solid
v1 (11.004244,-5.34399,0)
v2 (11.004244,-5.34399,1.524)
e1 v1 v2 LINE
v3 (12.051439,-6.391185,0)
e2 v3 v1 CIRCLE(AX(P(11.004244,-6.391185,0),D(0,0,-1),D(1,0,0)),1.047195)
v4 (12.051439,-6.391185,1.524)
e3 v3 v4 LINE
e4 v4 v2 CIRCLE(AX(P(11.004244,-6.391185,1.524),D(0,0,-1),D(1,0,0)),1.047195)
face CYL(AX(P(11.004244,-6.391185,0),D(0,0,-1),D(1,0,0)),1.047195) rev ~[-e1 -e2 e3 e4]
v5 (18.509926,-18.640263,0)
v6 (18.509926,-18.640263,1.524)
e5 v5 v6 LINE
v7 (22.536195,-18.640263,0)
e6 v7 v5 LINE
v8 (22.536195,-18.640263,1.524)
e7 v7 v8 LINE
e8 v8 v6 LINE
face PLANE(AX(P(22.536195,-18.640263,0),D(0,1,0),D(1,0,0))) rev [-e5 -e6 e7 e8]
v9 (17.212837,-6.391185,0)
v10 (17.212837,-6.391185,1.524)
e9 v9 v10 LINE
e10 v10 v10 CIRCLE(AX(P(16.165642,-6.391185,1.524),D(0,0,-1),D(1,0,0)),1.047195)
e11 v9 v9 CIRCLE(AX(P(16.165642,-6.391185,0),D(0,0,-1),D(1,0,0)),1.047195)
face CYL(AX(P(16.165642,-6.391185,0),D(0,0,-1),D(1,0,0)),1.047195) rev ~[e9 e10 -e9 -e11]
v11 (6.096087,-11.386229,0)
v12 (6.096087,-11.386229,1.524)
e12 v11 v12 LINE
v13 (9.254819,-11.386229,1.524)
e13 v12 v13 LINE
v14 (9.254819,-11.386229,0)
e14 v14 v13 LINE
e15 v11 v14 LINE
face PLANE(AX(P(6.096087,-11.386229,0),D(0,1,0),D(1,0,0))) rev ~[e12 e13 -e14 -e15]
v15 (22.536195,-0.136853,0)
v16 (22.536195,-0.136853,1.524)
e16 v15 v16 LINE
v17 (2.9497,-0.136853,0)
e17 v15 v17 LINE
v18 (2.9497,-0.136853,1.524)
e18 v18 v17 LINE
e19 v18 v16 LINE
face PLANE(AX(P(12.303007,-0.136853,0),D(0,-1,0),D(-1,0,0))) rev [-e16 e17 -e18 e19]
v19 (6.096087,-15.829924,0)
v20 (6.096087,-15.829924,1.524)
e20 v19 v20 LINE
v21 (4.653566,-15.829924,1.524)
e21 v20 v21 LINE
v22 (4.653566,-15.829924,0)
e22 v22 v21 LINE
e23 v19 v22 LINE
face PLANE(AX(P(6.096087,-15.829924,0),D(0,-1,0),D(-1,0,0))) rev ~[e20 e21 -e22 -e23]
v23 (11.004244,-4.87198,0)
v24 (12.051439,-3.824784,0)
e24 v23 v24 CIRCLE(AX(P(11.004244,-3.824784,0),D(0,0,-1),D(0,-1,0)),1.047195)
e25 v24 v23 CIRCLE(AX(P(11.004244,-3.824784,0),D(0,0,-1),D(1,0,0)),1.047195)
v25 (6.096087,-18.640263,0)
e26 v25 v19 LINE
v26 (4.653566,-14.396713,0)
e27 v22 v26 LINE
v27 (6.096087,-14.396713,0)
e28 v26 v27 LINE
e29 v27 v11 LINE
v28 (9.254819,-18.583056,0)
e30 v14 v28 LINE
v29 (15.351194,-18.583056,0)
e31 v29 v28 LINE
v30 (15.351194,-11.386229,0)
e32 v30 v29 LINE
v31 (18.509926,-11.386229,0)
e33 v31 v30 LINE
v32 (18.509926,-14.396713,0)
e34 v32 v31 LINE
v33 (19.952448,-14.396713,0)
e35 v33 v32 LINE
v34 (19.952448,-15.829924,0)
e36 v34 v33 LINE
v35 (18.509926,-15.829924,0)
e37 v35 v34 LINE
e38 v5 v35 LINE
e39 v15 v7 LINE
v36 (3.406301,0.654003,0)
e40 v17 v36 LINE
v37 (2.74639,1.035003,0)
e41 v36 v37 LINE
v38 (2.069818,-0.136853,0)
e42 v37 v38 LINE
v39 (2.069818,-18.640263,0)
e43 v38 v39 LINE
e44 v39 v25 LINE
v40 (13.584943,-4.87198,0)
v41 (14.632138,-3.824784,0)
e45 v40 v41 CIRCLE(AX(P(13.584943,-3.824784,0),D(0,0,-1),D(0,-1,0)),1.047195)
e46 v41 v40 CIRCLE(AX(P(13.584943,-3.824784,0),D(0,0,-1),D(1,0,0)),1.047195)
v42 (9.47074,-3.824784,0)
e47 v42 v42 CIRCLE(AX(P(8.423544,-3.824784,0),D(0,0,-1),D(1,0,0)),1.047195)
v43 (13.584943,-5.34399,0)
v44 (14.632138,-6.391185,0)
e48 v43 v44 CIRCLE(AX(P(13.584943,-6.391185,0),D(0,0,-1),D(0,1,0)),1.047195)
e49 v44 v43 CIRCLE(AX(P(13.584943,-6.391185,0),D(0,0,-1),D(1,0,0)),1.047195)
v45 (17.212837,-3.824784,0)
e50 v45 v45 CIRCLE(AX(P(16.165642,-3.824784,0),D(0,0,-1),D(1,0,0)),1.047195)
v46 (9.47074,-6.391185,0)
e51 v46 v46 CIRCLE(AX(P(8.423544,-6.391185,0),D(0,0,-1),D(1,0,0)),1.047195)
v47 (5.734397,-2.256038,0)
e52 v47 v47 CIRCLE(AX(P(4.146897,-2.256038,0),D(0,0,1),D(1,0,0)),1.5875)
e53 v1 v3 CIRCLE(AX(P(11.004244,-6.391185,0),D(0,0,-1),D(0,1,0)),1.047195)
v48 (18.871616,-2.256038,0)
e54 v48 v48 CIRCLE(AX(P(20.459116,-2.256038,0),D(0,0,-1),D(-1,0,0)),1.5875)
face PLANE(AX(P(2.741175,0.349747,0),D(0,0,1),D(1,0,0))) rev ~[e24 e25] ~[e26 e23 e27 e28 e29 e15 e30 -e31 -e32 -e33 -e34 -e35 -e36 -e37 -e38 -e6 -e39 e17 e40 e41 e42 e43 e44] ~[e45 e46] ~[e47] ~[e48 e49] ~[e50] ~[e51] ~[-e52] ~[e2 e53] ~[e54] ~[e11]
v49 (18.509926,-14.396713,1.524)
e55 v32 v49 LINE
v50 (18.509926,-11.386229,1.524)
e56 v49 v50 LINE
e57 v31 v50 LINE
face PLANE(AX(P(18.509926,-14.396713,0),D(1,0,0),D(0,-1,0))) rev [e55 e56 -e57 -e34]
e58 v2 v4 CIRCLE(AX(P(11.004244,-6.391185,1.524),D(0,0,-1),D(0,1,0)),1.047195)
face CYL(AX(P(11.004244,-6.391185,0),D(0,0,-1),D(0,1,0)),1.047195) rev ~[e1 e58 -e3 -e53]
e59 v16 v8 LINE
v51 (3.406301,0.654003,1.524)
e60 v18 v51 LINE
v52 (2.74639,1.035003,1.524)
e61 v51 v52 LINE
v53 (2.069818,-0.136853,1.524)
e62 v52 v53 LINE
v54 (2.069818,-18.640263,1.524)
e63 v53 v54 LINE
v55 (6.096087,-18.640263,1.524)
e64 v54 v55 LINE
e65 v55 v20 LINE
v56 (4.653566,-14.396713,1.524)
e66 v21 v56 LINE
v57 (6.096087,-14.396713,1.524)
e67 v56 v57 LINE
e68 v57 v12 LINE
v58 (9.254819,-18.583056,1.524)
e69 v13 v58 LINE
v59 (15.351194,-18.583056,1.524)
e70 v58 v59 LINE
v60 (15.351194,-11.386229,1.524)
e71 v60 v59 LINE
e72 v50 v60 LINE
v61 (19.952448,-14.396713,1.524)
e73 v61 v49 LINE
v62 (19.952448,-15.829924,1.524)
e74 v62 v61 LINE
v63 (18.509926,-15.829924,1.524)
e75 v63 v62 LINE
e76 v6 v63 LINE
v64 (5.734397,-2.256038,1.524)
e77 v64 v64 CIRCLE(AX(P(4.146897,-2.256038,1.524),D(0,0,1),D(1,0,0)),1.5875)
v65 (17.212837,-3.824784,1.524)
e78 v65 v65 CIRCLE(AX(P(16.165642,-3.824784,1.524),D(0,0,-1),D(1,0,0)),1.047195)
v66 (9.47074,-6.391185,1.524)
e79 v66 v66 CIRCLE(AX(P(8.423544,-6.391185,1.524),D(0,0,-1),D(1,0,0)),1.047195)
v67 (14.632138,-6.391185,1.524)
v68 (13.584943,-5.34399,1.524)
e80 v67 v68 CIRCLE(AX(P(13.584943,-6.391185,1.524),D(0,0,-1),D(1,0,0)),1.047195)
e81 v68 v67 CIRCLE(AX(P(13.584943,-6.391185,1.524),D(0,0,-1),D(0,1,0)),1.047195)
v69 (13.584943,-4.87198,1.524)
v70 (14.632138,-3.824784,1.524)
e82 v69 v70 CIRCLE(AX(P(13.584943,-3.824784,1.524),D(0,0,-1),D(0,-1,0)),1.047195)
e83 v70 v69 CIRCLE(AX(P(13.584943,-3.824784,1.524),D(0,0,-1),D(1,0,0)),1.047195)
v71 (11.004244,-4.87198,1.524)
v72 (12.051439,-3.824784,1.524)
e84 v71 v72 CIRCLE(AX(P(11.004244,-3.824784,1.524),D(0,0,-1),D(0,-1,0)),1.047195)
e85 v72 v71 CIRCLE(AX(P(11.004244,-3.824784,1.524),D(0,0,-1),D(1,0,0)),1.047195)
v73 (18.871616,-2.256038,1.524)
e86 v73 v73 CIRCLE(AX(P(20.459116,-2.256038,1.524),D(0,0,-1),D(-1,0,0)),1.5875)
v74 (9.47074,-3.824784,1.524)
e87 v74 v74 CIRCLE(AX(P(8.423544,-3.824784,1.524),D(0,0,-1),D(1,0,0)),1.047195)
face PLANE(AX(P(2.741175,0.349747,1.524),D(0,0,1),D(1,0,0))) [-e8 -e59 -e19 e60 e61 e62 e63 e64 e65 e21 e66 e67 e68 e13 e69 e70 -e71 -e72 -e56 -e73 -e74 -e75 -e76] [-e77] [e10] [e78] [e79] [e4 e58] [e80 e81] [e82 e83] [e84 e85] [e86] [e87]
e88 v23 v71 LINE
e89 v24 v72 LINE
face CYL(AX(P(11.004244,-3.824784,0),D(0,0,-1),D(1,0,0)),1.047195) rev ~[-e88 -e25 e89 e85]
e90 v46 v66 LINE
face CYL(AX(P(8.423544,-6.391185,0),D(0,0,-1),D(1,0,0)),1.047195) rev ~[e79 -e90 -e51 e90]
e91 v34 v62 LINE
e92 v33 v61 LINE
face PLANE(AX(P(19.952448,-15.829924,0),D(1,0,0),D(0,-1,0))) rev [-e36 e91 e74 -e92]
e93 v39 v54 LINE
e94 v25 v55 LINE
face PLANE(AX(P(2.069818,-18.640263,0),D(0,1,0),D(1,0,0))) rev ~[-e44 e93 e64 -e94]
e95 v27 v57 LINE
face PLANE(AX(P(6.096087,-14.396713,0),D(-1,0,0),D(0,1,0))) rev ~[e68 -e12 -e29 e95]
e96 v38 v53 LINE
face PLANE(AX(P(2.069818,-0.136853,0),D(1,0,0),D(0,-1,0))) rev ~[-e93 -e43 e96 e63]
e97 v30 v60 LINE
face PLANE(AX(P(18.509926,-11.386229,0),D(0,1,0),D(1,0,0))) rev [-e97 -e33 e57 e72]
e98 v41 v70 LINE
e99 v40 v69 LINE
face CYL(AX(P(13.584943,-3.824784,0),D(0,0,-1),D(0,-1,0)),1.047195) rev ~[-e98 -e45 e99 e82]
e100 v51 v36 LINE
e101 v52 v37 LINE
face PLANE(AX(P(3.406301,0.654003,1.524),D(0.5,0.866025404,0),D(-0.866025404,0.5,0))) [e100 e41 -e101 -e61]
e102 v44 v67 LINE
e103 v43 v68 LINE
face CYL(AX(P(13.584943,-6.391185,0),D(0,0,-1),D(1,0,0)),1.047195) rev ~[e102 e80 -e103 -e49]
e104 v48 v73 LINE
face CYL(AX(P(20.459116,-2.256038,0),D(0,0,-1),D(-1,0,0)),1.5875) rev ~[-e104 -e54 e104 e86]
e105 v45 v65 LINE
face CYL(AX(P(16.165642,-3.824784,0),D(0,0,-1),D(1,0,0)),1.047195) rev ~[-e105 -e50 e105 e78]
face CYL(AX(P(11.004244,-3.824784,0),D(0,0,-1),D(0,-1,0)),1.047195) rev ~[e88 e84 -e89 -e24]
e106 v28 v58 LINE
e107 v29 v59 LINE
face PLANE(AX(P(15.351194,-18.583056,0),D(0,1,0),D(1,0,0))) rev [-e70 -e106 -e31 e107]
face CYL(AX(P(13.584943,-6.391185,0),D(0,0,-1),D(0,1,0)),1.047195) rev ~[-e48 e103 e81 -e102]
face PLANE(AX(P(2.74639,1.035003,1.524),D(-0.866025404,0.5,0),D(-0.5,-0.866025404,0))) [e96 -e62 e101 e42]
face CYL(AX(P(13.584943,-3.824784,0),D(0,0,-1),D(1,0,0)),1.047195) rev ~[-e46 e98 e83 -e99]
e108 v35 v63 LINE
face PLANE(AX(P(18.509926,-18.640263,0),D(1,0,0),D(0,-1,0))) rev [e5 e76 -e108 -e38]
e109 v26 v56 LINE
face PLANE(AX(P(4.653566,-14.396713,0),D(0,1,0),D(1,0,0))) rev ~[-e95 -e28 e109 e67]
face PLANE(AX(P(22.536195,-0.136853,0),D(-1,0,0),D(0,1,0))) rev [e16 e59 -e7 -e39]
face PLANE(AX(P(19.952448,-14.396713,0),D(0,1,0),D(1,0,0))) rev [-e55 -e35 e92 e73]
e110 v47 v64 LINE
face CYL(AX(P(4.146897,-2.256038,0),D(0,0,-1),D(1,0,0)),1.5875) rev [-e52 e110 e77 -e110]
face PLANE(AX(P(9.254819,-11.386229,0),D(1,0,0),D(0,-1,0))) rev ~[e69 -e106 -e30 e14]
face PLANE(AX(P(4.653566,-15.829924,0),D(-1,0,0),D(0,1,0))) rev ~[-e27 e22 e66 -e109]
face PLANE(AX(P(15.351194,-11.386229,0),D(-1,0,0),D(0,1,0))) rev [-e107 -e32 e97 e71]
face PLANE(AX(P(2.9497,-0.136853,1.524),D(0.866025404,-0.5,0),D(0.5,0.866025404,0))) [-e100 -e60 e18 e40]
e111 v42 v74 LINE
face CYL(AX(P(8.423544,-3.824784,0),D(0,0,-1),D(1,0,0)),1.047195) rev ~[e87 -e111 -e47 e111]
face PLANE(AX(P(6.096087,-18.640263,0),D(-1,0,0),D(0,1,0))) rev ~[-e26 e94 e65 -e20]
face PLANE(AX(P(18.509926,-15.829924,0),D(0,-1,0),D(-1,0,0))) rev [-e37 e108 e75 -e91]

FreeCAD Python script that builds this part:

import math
import FreeCAD as App
import Part
import Sketcher

V = App.Vector
Q = App.Units.Quantity


def add_polygon(sketch, points):
    """Adds a closed chain of lines whose ends are joined by coincident constraints."""
    first, n = sketch.GeometryCount, len(points)
    for a, b in zip(points, points[1:] + points[:1]):
        sketch.addGeometry(Part.LineSegment(App.Vector(*a, 0), App.Vector(*b, 0)), False)
    for i in range(n):
        sketch.addConstraint(Sketcher.Constraint("Coincident", first + i, 2, first + (i + 1) % n, 1))

doc = App.newDocument("Part")
body = doc.addObject("PartDesign::Body", "Body")

# Sketch on XY plane
sketch1 = doc.addObject("Sketcher::SketchObject", "Sketch")
body.addObject(sketch1)
sketch1.AttachmentSupport = (doc.XY_Plane, [""])
sketch1.MapMode = "FlatFace"
add_polygon(sketch1, [(12.3, -0.1), (2.1, -0.1), (2.1, -18.6), (6.1, -18.6), (6.1, -15.8), (4.7, -15.8), (4.7, -14.4), (6.1, -14.4), (6.1, -11.4), (9.3, -11.4), (9.3, -18.6), (12.3, -18.6)])  # lines 0-11
sketch1.addGeometry(Part.Circle(V(4.1, -2.3, 0), V(0, 0, 1), 1.6), False)  # 12
sketch1.addConstraint(Sketcher.Constraint("Horizontal", 0))
sketch1.addConstraint(Sketcher.Constraint("Vertical", 1))
sketch1.addConstraint(Sketcher.Constraint("Horizontal", 2))
sketch1.addConstraint(Sketcher.Constraint("Vertical", 3))
sketch1.addConstraint(Sketcher.Constraint("Horizontal", 4))
sketch1.addConstraint(Sketcher.Constraint("Vertical", 5))
sketch1.addConstraint(Sketcher.Constraint("Horizontal", 6))
sketch1.addConstraint(Sketcher.Constraint("Vertical", 7))
sketch1.addConstraint(Sketcher.Constraint("Horizontal", 8))
sketch1.addConstraint(Sketcher.Constraint("Vertical", 9))
sketch1.addConstraint(Sketcher.Constraint("Horizontal", 10))
sketch1.addConstraint(Sketcher.Constraint("Vertical", 11))
sketch1.addConstraint(Sketcher.Constraint("Vertical", 3, 2, 6, 2))
sketch1.addConstraint(Sketcher.Constraint("Diameter", 12, Q("0.125 in")))
sketch1.addConstraint(Sketcher.Constraint("DistanceX", 0, 2, 0, 1, 10.233188))
sketch1.addConstraint(Sketcher.Constraint("DistanceX", 2, 1, 2, 2, 4.026269))
sketch1.addConstraint(Sketcher.Constraint("DistanceX", 4, 2, 4, 1, 1.442521))
sketch1.addConstraint(Sketcher.Constraint("DistanceY", 1, 2, 1, 1, 18.50341))
sketch1.addConstraint(Sketcher.Constraint("DistanceY", 3, 1, 3, 2, 2.810339))
sketch1.addConstraint(Sketcher.Constraint("DistanceY", 5, 1, 5, 2, 1.433211))
sketch1.addConstraint(Sketcher.Constraint("DistanceX", 8, 1, 8, 2, 3.158732))
sketch1.addConstraint(Sketcher.Constraint("DistanceY", 7, 1, 7, 2, 3.010484))
sketch1.addConstraint(Sketcher.Constraint("DistanceY", 9, 2, 9, 1, 7.196827))
sketch1.addConstraint(Sketcher.Constraint("DistanceY", 12, 3, -1, 1, 2.256038))
sketch1.addConstraint(Sketcher.Constraint("DistanceX", -1, 1, 0, 2, 2.069818))
sketch1.addConstraint(Sketcher.Constraint("DistanceY", 7, 2, -1, 1, 11.386229))
sketch1.addConstraint(Sketcher.Constraint("DistanceX", 0, 2, 12, 3, 2.077079))
pad1 = doc.addObject("PartDesign::Pad", "Pad")
body.addObject(pad1)
pad1.Profile = sketch1
pad1.Length = Q("0.06 in")
body2 = doc.addObject("PartDesign::Body", "Body001")
doc.recompute()

body2.BaseFeature = body
doc.recompute()

mirroring = doc.addObject("Part::Mirroring", "Mirroring")
mirroring.Source = body
mirroring.Base = V(12.303007, -9.359954, 0.762)
mirroring.Normal = V(1, 0, 0)
body3 = doc.addObject("PartDesign::Body", "Body002")
body3.BaseFeature = mirroring
boolean = doc.addObject("PartDesign::Boolean", "Boolean")
body2.addObject(boolean)
boolean.Type = "Fuse"
boolean.addObjects([body3])
doc.recompute()

# Sketch on XY plane
sketch2 = doc.addObject("Sketcher::SketchObject", "Sketch001")
body2.addObject(sketch2)
sketch2.AttachmentSupport = (doc.getObject("XY_Plane001"), [""])
sketch2.MapMode = "FlatFace"
sketch2.addGeometry(Part.Circle(V(16.2, -3.8, 0), V(0, 0, 1), 1), False)
sketch2.addGeometry(Part.ArcOfCircle(Part.Circle(V(13.6, -3.8, 0), V(0, 0, 1), 1), math.radians(0), math.radians(270)), False)
sketch2.addGeometry(Part.ArcOfCircle(Part.Circle(V(13.6, -3.8, 0), V(0, 0, 1), 1), math.radians(-90), math.radians(0)), False)
sketch2.addGeometry(Part.ArcOfCircle(Part.Circle(V(13.6, -6.4, 0), V(0, 0, 1), 1), math.radians(90), math.radians(360)), False)
sketch2.addGeometry(Part.ArcOfCircle(Part.Circle(V(13.6, -6.4, 0), V(0, 0, 1), 1), math.radians(0), math.radians(90)), False)
sketch2.addGeometry(Part.Circle(V(8.4, -3.8, 0), V(0, 0, 1), 1), False)
sketch2.addGeometry(Part.Circle(V(8.4, -6.4, 0), V(0, 0, 1), 1), False)
sketch2.addGeometry(Part.Circle(V(16.2, -6.4, 0), V(0, 0, 1), 1), False)
sketch2.addGeometry(Part.ArcOfCircle(Part.Circle(V(11, -3.8, 0), V(0, 0, 1), 1), math.radians(0), math.radians(270)), False)
sketch2.addGeometry(Part.ArcOfCircle(Part.Circle(V(11, -3.8, 0), V(0, 0, 1), 1), math.radians(-90), math.radians(0)), False)
sketch2.addGeometry(Part.ArcOfCircle(Part.Circle(V(11, -6.4, 0), V(0, 0, 1), 1), math.radians(90), math.radians(360)), False)
sketch2.addGeometry(Part.ArcOfCircle(Part.Circle(V(11, -6.4, 0), V(0, 0, 1), 1), math.radians(0), math.radians(90)), False)
sketch2.addConstraint(Sketcher.Constraint("Tangent", 1, 1, 2, 2))
sketch2.addConstraint(Sketcher.Constraint("Coincident", 2, 1, 1, 2))
sketch2.addConstraint(Sketcher.Constraint("Tangent", 3, 1, 4, 2))
sketch2.addConstraint(Sketcher.Constraint("Coincident", 4, 1, 3, 2))
sketch2.addConstraint(Sketcher.Constraint("Tangent", 8, 1, 9, 2))
sketch2.addConstraint(Sketcher.Constraint("Coincident", 9, 1, 8, 2))
sketch2.addConstraint(Sketcher.Constraint("Tangent", 10, 1, 11, 2))
sketch2.addConstraint(Sketcher.Constraint("Coincident", 11, 1, 10, 2))
sketch2.addConstraint(Sketcher.Constraint("Equal", 0, 1))
sketch2.addConstraint(Sketcher.Constraint("Equal", 2, 3))
sketch2.addConstraint(Sketcher.Constraint("Equal", 4, 5))
sketch2.addConstraint(Sketcher.Constraint("Equal", 5, 6))
sketch2.addConstraint(Sketcher.Constraint("Equal", 6, 7))
sketch2.addConstraint(Sketcher.Constraint("Equal", 7, 8))
sketch2.addConstraint(Sketcher.Constraint("Equal", 9, 10))
sketch2.addConstraint(Sketcher.Constraint("Horizontal", 0, 3, 1, 3))
sketch2.addConstraint(Sketcher.Constraint("Horizontal", 2, 3, 5, 3))
sketch2.addConstraint(Sketcher.Constraint("Horizontal", 4, 3, 6, 3))
sketch2.addConstraint(Sketcher.Constraint("Horizontal", 6, 3, 7, 3))
sketch2.addConstraint(Sketcher.Constraint("Horizontal", 5, 3, 8, 3))
sketch2.addConstraint(Sketcher.Constraint("Horizontal", 7, 3, 10, 3))
sketch2.addConstraint(Sketcher.Constraint("Horizontal", 9, 3, 1, 1))
sketch2.addConstraint(Sketcher.Constraint("Horizontal", 11, 3, 4, 1))
sketch2.addConstraint(Sketcher.Constraint("Horizontal", 1, 1, 8, 1))
sketch2.addConstraint(Sketcher.Constraint("Horizontal", 4, 1, 11, 1))
sketch2.addConstraint(Sketcher.Constraint("Vertical", 2, 3, 3, 3))
sketch2.addConstraint(Sketcher.Constraint("Vertical", 5, 3, 6, 3))
sketch2.addConstraint(Sketcher.Constraint("Vertical", 0, 3, 7, 3))
sketch2.addConstraint(Sketcher.Constraint("Vertical", 9, 3, 10, 3))
sketch2.addConstraint(Sketcher.Constraint("Vertical", 4, 3, 2, 1))
sketch2.addConstraint(Sketcher.Constraint("Vertical", 2, 1, 3, 1))
sketch2.addConstraint(Sketcher.Constraint("Vertical", 11, 3, 9, 1))
sketch2.addConstraint(Sketcher.Constraint("Vertical", 9, 1, 10, 1))
sketch2.addConstraint(Sketcher.Constraint("Diameter", 0, 2.094391))
sketch2.addConstraint(Sketcher.Constraint("DistanceX", 1, 3, 0, 3, 2.580699))
sketch2.addConstraint(Sketcher.Constraint("DistanceY", 3, 3, 1, 3, 2.566401))
sketch2.addConstraint(Sketcher.Constraint("DistanceX", 5, 3, 1, 3, 5.161398))
sketch2.addConstraint(Sketcher.Constraint("DistanceX", 8, 3, 1, 3, 2.580699))
sketch2.addConstraint(Sketcher.Constraint("DistanceX", -1, 1, 1, 1, 14.632138))
sketch2.addConstraint(Sketcher.Constraint("DistanceY", 2, 1, -1, 1, 4.87198))
pocket1 = doc.addObject("PartDesign::Pocket", "Pocket")
body2.addObject(pocket1)
pocket1.Profile = sketch2
pocket1.Type = "ThroughAll"
pocket1.Reversed = True

# Sketch on XY plane
sketch3 = doc.addObject("Sketcher::SketchObject", "Sketch002")
body2.addObject(sketch3)
sketch3.AttachmentSupport = (doc.getObject("XY_Plane001"), [""])
sketch3.MapMode = "FlatFace"
sketch3.AttachmentOffset = App.Placement(V(0, 0, 0.06 * 25.4), App.Rotation())
add_polygon(sketch3, [(2.7, 1), (2.1, -0.1), (2.9, -0.1), (3.4, 0.7)])  # lines 0-3
sketch3.addConstraint(Sketcher.Constraint("Horizontal", 1))
sketch3.addConstraint(Sketcher.Constraint("Parallel", 0, 2))
sketch3.addConstraint(Sketcher.Constraint("Perpendicular", 2, 3))
sketch3.addConstraint(Sketcher.Constraint("Angle", 0, Q("-120 deg")))
sketch3.addConstraint(Sketcher.Constraint("Distance", 3, Q("0.03 in")))
sketch3.addConstraint(Sketcher.Constraint("DistanceX", -1, 1, 1, 2, 2.9497))
sketch3.addConstraint(Sketcher.Constraint("DistanceX", -1, 1, 2, 2, 3.406301))
sketch3.addConstraint(Sketcher.Constraint("DistanceY", 0, 2, -1, 1, 0.136853))
pad2 = doc.addObject("PartDesign::Pad", "Pad001")
body2.addObject(pad2)
pad2.Profile = sketch3
pad2.Length = Q("0.06 in")
pad2.Reversed = True
mirroring.Visibility = False

doc.recompute()
